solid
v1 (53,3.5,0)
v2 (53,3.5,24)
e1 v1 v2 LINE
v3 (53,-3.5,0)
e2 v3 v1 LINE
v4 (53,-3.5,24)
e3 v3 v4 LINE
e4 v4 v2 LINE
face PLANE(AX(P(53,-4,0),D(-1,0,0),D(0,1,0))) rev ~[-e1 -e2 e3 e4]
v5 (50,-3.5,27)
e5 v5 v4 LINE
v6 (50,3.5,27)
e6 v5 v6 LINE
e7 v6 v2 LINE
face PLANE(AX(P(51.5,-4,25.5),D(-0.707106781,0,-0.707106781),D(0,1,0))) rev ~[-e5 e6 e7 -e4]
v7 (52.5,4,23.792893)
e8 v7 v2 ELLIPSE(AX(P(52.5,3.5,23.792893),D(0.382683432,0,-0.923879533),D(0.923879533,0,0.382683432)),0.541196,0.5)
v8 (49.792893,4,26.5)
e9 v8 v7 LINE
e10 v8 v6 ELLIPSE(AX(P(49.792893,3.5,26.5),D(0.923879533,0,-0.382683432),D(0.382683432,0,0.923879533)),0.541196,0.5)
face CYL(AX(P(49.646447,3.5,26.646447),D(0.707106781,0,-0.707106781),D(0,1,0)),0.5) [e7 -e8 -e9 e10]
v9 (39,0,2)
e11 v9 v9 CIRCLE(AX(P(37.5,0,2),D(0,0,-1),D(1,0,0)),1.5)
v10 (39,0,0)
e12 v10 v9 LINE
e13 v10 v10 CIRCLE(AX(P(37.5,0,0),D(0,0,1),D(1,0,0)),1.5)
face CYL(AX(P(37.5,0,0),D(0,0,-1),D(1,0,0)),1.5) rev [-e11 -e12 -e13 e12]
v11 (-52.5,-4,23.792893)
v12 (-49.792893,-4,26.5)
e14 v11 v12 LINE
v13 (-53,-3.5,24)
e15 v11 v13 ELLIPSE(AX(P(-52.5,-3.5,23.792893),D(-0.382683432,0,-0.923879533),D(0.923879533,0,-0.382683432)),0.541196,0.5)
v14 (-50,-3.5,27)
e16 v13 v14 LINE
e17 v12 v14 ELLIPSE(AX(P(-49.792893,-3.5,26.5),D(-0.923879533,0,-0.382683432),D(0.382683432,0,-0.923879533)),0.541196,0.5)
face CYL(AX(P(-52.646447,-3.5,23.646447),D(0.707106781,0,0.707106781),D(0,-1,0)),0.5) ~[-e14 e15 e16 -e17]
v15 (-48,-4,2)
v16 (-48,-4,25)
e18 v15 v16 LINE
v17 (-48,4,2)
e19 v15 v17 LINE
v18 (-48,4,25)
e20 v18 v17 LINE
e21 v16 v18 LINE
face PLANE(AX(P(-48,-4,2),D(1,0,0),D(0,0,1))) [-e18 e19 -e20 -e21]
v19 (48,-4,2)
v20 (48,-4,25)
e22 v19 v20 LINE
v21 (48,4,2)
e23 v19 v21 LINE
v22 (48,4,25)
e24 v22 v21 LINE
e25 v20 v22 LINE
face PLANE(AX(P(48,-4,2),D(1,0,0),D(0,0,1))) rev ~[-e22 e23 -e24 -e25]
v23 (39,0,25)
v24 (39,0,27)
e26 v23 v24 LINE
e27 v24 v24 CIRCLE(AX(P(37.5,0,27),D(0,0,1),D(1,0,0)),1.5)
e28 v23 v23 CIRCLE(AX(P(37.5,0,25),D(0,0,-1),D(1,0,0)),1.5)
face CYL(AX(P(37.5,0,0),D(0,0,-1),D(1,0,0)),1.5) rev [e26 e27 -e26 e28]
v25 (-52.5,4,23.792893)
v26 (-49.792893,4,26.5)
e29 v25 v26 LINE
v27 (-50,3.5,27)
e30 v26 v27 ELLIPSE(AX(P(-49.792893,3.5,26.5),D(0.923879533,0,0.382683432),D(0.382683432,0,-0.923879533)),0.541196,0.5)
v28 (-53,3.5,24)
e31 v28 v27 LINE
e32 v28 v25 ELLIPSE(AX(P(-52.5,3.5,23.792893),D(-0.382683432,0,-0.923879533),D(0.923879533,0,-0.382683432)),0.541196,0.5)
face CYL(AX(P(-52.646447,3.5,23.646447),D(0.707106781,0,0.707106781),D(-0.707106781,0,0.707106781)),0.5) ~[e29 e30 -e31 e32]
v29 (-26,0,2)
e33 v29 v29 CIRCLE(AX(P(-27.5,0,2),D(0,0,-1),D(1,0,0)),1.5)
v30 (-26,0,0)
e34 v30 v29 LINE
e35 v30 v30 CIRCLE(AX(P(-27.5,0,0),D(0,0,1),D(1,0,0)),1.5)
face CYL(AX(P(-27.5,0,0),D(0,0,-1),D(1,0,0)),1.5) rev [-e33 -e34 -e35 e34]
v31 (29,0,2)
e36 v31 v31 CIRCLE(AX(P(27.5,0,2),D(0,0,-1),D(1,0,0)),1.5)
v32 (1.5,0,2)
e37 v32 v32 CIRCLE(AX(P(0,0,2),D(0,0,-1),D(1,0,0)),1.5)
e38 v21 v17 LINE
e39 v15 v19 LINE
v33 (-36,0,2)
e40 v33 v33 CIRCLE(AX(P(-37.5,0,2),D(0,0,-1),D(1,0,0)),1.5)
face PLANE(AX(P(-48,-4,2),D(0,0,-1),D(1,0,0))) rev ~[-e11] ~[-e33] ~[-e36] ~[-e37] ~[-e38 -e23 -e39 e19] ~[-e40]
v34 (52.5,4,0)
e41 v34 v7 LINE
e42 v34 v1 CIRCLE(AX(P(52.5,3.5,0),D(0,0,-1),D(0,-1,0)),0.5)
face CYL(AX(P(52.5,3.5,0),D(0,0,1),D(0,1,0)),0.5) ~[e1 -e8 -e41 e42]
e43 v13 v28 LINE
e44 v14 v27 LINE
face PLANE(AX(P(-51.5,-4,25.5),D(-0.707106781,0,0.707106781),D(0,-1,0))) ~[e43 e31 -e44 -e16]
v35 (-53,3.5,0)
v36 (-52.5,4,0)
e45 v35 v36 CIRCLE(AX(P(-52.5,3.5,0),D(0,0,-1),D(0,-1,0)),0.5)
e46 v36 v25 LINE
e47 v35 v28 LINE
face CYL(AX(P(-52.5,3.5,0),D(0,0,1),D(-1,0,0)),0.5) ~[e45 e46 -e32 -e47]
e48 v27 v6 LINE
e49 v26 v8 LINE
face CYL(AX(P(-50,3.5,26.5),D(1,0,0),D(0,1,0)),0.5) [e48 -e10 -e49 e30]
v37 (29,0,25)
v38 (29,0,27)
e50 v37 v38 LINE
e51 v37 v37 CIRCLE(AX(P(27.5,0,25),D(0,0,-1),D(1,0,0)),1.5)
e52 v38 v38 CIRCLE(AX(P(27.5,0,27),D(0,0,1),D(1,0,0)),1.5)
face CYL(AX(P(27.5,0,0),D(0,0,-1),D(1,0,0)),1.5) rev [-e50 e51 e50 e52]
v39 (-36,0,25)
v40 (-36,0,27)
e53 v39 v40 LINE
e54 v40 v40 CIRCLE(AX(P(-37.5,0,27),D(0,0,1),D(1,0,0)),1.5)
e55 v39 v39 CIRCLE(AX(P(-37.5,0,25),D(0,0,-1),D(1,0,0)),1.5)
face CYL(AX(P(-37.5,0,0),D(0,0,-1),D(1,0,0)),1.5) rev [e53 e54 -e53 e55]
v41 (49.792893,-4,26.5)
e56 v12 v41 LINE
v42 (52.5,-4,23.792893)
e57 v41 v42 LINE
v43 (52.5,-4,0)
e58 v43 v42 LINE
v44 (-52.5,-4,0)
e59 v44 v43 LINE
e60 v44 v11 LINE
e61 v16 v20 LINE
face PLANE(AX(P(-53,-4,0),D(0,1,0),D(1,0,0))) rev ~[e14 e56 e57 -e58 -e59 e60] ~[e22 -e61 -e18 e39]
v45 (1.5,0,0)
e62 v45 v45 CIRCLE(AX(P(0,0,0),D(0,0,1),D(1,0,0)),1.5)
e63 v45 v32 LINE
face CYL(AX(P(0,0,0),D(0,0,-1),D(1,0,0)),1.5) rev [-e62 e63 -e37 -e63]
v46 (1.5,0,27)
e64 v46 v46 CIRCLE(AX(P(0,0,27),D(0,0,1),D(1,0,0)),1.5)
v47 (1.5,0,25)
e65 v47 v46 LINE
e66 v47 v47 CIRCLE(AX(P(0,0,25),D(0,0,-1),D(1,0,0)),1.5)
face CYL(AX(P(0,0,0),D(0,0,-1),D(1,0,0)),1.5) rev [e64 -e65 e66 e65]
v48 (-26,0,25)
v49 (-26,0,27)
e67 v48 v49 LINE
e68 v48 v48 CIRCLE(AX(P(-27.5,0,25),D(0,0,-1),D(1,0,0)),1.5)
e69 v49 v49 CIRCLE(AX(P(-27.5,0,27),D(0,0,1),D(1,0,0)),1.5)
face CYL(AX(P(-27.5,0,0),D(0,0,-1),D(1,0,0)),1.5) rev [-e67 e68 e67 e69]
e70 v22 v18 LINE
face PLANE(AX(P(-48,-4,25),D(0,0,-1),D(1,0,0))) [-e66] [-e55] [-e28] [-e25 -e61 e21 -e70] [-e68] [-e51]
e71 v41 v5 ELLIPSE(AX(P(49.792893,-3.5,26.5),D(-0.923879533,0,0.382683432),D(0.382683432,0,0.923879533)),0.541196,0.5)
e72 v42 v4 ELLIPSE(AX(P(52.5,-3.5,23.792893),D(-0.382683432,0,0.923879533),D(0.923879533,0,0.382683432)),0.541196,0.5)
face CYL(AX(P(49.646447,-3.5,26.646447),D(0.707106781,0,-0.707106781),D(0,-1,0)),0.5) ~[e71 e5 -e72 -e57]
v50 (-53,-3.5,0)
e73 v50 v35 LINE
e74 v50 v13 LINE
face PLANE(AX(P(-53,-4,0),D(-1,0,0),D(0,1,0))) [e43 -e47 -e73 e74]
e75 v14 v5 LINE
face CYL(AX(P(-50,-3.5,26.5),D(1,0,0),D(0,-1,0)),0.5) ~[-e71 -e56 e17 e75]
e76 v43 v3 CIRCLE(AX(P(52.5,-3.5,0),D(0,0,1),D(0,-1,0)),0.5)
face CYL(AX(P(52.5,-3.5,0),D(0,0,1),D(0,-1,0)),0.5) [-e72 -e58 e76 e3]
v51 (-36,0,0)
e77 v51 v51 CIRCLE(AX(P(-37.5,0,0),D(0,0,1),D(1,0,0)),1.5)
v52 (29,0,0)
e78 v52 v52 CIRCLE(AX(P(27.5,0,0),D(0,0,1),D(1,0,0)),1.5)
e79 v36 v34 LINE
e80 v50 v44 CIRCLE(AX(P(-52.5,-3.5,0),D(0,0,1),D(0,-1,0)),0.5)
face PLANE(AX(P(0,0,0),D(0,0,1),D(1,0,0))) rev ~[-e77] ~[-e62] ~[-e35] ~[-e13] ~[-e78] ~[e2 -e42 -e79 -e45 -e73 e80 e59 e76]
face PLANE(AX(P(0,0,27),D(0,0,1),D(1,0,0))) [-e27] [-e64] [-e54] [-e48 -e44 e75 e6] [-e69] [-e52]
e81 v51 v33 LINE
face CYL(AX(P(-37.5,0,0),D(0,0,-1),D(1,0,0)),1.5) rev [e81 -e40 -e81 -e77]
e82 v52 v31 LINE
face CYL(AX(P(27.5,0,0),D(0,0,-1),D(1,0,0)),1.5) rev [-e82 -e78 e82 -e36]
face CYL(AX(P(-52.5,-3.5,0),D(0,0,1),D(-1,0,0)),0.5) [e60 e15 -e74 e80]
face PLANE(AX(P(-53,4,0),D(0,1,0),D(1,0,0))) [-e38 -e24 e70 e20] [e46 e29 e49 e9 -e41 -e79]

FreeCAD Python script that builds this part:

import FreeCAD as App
import Part
import Sketcher
from FreeCAD import Vector
Q = App.Units.Quantity


def edges_at(feature, points):
    """Names of the edges that pass closest to the given points."""
    edges = feature.Shape.Edges
    near = lambda p: min(range(len(edges)), key=lambda i: edges[i].distToShape(Part.Vertex(*p))[0])
    return sorted({f"Edge{near(p) + 1}" for p in points})


def add_polygon(sketch, points):
    """Adds a closed chain of lines whose ends are joined by coincident constraints."""
    first, n = sketch.GeometryCount, len(points)
    for a, b in zip(points, points[1:] + points[:1]):
        sketch.addGeometry(Part.LineSegment(App.Vector(*a, 0), App.Vector(*b, 0)), False)
    for i in range(n):
        sketch.addConstraint(Sketcher.Constraint("Coincident", first + i, 2, first + (i + 1) % n, 1))

doc = App.newDocument("Part")
body = doc.addObject("PartDesign::Body", "Body")

# Sketch on XY plane
sketch1 = body.newObject("Sketcher::SketchObject", "Sketch")
sketch1.AttachmentSupport = (doc.getObject("XY_Plane"), [""])
sketch1.MapMode = "FlatFace"
add_polygon(sketch1, [(-53, 4), (-53, -4), (53, -4), (53, 4)])  # lines 0-3
sketch1.addGeometry(Part.Circle(Vector(-37.5, 0, 0), Vector(0, 0, 1), 1.5), False)  # 4
sketch1.addGeometry(Part.Circle(Vector(-27.5, 0, 0), Vector(0, 0, 1), 1.5), False)  # 5
sketch1.addGeometry(Part.Circle(Vector(0, 0, 0), Vector(0, 0, 1), 1.5), False)  # 6
sketch1.addGeometry(Part.Circle(Vector(27.5, 0, 0), Vector(0, 0, 1), 1.5), False)  # 7
sketch1.addGeometry(Part.Circle(Vector(37.5, 0, 0), Vector(0, 0, 1), 1.5), False)  # 8
sketch1.addConstraint([
    Sketcher.Constraint("Vertical", 0),
    Sketcher.Constraint("Horizontal", 1),
    Sketcher.Constraint("Vertical", 2),
    Sketcher.Constraint("Horizontal", 3),
    Sketcher.Constraint("Coincident", 6, 3, -1, 1),
    Sketcher.Constraint("Equal", 4, 5),
    Sketcher.Constraint("Equal", 5, 6),
    Sketcher.Constraint("Equal", 6, 7),
    Sketcher.Constraint("Equal", 7, 8),
    Sketcher.Constraint("Symmetric", 5, 3, 7, 3, -1, 1),
    Sketcher.Constraint("Symmetric", 4, 3, 8, 3, -1, 1),
    Sketcher.Constraint("Symmetric", 0, 2, 2, 2, -1, 1),
    Sketcher.Constraint("PointOnObject", 4, 3, -1),
    Sketcher.Constraint("PointOnObject", 5, 3, -1),
    Sketcher.Constraint("Diameter", 4, Q("3 mm")),
    Sketcher.Constraint("DistanceX", 1, 1, 1, 2, Q("106 mm")),
    Sketcher.Constraint("DistanceY", 0, 2, 0, 1, Q("8 mm")),
    Sketcher.Constraint("DistanceX", 4, 3, 5, 3, Q("10 mm")),
    Sketcher.Constraint("DistanceX", 5, 3, 7, 3, Q("55 mm")),
])
pad1 = body.newObject("PartDesign::Pad", "Pad")
pad1.Profile = sketch1
pad1.Length = 27

# Sketch on XZ plane
sketch2 = body.newObject("Sketcher::SketchObject", "Sketch001")
sketch2.AttachmentSupport = (doc.getObject("XZ_Plane"), [""])
sketch2.MapMode = "FlatFace"
sketch2.AttachmentOffset = App.Placement(Vector(0, 0, 4), App.Rotation())
add_polygon(sketch2, [(-48, 25), (-48, 2), (48, 2), (48, 25)])  # lines 0-3
sketch2.addConstraint([
    Sketcher.Constraint("Vertical", 0),
    Sketcher.Constraint("Horizontal", 1),
    Sketcher.Constraint("Vertical", 2),
    Sketcher.Constraint("Horizontal", 3),
    Sketcher.Constraint("DistanceX", 1, 1, 1, 2, Q("96 mm")),
    Sketcher.Constraint("DistanceY", 0, 2, 0, 1, Q("23 mm")),
    Sketcher.Constraint("DistanceX", 0, 2, -1, 1, Q("48 mm")),
    Sketcher.Constraint("DistanceY", -1, 1, 0, 2, Q("2 mm")),
])
pocket1 = body.newObject("PartDesign::Pocket", "Pocket")
pocket1.Profile = sketch2
pocket1.Length = 25
doc.recompute()

chamfer = body.newObject("PartDesign::Chamfer", "Chamfer")
chamfer.Base = (pocket1, edges_at(pocket1, [(-53, 0, 27), (53, 0, 27)]))
chamfer.Size = 3
doc.recompute()

fillet = body.newObject("PartDesign::Fillet", "Fillet")
fillet.Base = (chamfer, edges_at(chamfer, [
    (0, -4, 27),
    (0, 4, 27),
    (51.5, -4, 25.5),
    (53, -4, 12),
    (51.5, 4, 25.5),
    (53, 4, 12),
    (-51.5, -4, 25.5),
    (-51.5, 4, 25.5),
    (-53, -4, 12),
    (-53, 4, 12),
]))
fillet.Radius = 0.5

doc.recompute()
